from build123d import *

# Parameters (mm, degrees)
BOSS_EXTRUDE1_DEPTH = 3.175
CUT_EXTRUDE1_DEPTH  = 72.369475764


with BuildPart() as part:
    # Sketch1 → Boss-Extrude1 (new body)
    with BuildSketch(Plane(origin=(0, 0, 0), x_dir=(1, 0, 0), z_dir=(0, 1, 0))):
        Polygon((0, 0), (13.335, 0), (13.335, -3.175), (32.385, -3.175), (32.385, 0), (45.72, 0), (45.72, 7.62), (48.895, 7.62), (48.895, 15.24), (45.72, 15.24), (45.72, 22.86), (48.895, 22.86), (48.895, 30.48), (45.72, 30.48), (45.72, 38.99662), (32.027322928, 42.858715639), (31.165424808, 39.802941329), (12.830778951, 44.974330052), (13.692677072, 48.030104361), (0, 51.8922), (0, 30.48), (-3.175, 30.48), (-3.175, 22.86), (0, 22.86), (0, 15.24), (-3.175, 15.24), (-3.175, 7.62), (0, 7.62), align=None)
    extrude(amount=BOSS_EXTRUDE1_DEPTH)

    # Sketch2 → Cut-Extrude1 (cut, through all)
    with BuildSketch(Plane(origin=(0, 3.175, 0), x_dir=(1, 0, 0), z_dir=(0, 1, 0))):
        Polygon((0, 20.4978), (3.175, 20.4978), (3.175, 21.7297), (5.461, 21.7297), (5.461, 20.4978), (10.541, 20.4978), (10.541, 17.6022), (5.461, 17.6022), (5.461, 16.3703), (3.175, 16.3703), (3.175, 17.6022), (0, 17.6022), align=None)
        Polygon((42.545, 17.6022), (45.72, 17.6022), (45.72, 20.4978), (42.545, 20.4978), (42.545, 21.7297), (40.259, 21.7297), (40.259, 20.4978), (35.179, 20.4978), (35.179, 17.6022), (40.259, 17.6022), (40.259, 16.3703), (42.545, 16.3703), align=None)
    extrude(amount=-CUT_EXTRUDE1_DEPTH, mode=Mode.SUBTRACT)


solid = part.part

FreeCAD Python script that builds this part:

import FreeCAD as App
import Part
import Sketcher
from FreeCAD import Vector
Q = App.Units.Quantity

doc = App.newDocument("Part")
body = doc.addObject("PartDesign::Body", "Body")

# Sketch on XZ plane
sketch1 = body.newObject("Sketcher::SketchObject", "Sketch")
sketch1.AttachmentSupport = (doc.getObject("XZ_Plane"), [""])
sketch1.MapMode = "FlatFace"
sketch1.addGeometry([
    Part.LineSegment(Vector(0, 0, 0), Vector(13.3, 0, 0)),  # 0
    Part.LineSegment(Vector(13.3, 0, 0), Vector(13.3, 3.2, 0)),  # 1
    Part.LineSegment(Vector(13.3, 3.2, 0), Vector(32.4, 3.2, 0)),  # 2
    Part.LineSegment(Vector(32.4, 3.2, 0), Vector(32.4, 0, 0)),  # 3
    Part.LineSegment(Vector(32.4, 0, 0), Vector(45.7, 0, 0)),  # 4
    Part.LineSegment(Vector(45.7, 0, 0), Vector(45.7, -7.6, 0)),  # 5
    Part.LineSegment(Vector(45.7, -7.6, 0), Vector(48.9, -7.6, 0)),  # 6
    Part.LineSegment(Vector(48.9, -7.6, 0), Vector(48.9, -15.2, 0)),  # 7
    Part.LineSegment(Vector(48.9, -15.2, 0), Vector(45.7, -15.2, 0)),  # 8
    Part.LineSegment(Vector(45.7, -15.2, 0), Vector(45.7, -22.9, 0)),  # 9
    Part.LineSegment(Vector(45.7, -22.9, 0), Vector(48.9, -22.9, 0)),  # 10
    Part.LineSegment(Vector(48.9, -22.9, 0), Vector(48.9, -30.5, 0)),  # 11
    Part.LineSegment(Vector(48.9, -30.5, 0), Vector(45.7, -30.5, 0)),  # 12
    Part.LineSegment(Vector(45.7, -30.5, 0), Vector(45.7, -39, 0)),  # 13
    Part.LineSegment(Vector(45.7, -39, 0), Vector(32, -42.9, 0)),  # 14
    Part.LineSegment(Vector(32, -42.9, 0), Vector(31.2, -39.8, 0)),  # 15
    Part.LineSegment(Vector(31.2, -39.8, 0), Vector(12.8, -45, 0)),  # 16
    Part.LineSegment(Vector(12.8, -45, 0), Vector(13.7, -48, 0)),  # 17
    Part.LineSegment(Vector(13.7, -48, 0), Vector(0, -51.9, 0)),  # 18
    Part.LineSegment(Vector(0, -51.9, 0), Vector(0, -30.5, 0)),  # 19
    Part.LineSegment(Vector(0, -30.5, 0), Vector(-3.2, -30.5, 0)),  # 20
    Part.LineSegment(Vector(-3.2, -30.5, 0), Vector(-3.2, -22.9, 0)),  # 21
    Part.LineSegment(Vector(-3.2, -22.9, 0), Vector(0, -22.9, 0)),  # 22
    Part.LineSegment(Vector(0, -22.9, 0), Vector(0, -15.2, 0)),  # 23
    Part.LineSegment(Vector(0, -15.2, 0), Vector(-3.2, -15.2, 0)),  # 24
    Part.LineSegment(Vector(-3.2, -15.2, 0), Vector(-3.2, -7.6, 0)),  # 25
    Part.LineSegment(Vector(-3.2, -7.6, 0), Vector(0, -7.6, 0)),  # 26
    Part.LineSegment(Vector(0, -7.6, 0), Vector(0, 0, 0)),  # 27
], False)
sketch1.addConstraint([
    Sketcher.Constraint("Coincident", 0, 2, 1, 1),
    Sketcher.Constraint("Coincident", 1, 2, 2, 1),
    Sketcher.Constraint("Coincident", 2, 2, 3, 1),
    Sketcher.Constraint("Coincident", 3, 2, 4, 1),
    Sketcher.Constraint("Coincident", 4, 2, 5, 1),
    Sketcher.Constraint("Coincident", 5, 2, 6, 1),
    Sketcher.Constraint("Coincident", 6, 2, 7, 1),
    Sketcher.Constraint("Coincident", 7, 2, 8, 1),
    Sketcher.Constraint("Coincident", 8, 2, 9, 1),
    Sketcher.Constraint("Coincident", 9, 2, 10, 1),
    Sketcher.Constraint("Coincident", 10, 2, 11, 1),
    Sketcher.Constraint("Coincident", 11, 2, 12, 1),
    Sketcher.Constraint("Coincident", 12, 2, 13, 1),
    Sketcher.Constraint("Coincident", 13, 2, 14, 1),
    Sketcher.Constraint("Coincident", 14, 2, 15, 1),
    Sketcher.Constraint("Coincident", 15, 2, 16, 1),
    Sketcher.Constraint("Coincident", 16, 2, 17, 1),
    Sketcher.Constraint("Coincident", 17, 2, 18, 1),
    Sketcher.Constraint("Coincident", 18, 2, 19, 1),
    Sketcher.Constraint("Coincident", 19, 2, 20, 1),
    Sketcher.Constraint("Coincident", 20, 2, 21, 1),
    Sketcher.Constraint("Coincident", 21, 2, 22, 1),
    Sketcher.Constraint("Coincident", 22, 2, 23, 1),
    Sketcher.Constraint("Coincident", 23, 2, 24, 1),
    Sketcher.Constraint("Coincident", 24, 2, 25, 1),
    Sketcher.Constraint("Coincident", 25, 2, 26, 1),
    Sketcher.Constraint("Coincident", 26, 2, 27, 1),
    Sketcher.Constraint("Coincident", 27, 2, 0, 1),
    Sketcher.Constraint("Horizontal", 0),
    Sketcher.Constraint("Vertical", 1),
    Sketcher.Constraint("Horizontal", 2),
    Sketcher.Constraint("Vertical", 3),
    Sketcher.Constraint("Horizontal", 4),
    Sketcher.Constraint("Vertical", 5),
    Sketcher.Constraint("Horizontal", 6),
    Sketcher.Constraint("Vertical", 7),
    Sketcher.Constraint("Horizontal", 8),
    Sketcher.Constraint("Vertical", 9),
    Sketcher.Constraint("Horizontal", 10),
    Sketcher.Constraint("Vertical", 11),
    Sketcher.Constraint("Horizontal", 12),
    Sketcher.Constraint("Vertical", 13),
    Sketcher.Constraint("Vertical", 19),
    Sketcher.Constraint("Horizontal", 20),
    Sketcher.Constraint("Vertical", 21),
    Sketcher.Constraint("Horizontal", 22),
    Sketcher.Constraint("Vertical", 23),
    Sketcher.Constraint("Horizontal", 24),
    Sketcher.Constraint("Vertical", 25),
    Sketcher.Constraint("Horizontal", 26),
    Sketcher.Constraint("Vertical", 27),
    Sketcher.Constraint("Coincident", 27, 2, -1, 1),
    Sketcher.Constraint("PointOnObject", 3, 2, -1),
    Sketcher.Constraint("PointOnObject", 18, 2, -2),
    Sketcher.Constraint("PointOnObject", 22, 2, -2),
    Sketcher.Constraint("Perpendicular", 14, 15),
    Sketcher.Constraint("Perpendicular", 15, 16),
    Sketcher.Constraint("Perpendicular", 16, 17),
    Sketcher.Constraint("Perpendicular", 17, 18),
    Sketcher.Constraint("Horizontal", 12, 2, 19, 2),
    Sketcher.Constraint("Horizontal", 10, 2, 21, 2),
    Sketcher.Constraint("Horizontal", 8, 2, 23, 2),
    Sketcher.Constraint("Horizontal", 6, 2, 25, 2),
    Sketcher.Constraint("Vertical", 5, 2, 8, 2),
    Sketcher.Constraint("Vertical", 7, 2, 10, 2),
    Sketcher.Constraint("Vertical", 9, 2, 12, 2),
    Sketcher.Constraint("Vertical", 21, 2, 24, 2),
    Sketcher.Constraint("Equal", 0, 4),
    Sketcher.Constraint("Equal", 12, 20),
    Sketcher.Constraint("Equal", 26, 1),
    Sketcher.Constraint("Equal", 5, 7),
    Sketcher.Constraint("Equal", 7, 9),
    Sketcher.Constraint("Equal", 9, 11),
    Sketcher.Constraint("Equal", 15, 17),
    Sketcher.Constraint("Equal", 14, 18),
    Sketcher.Constraint("DistanceY", 5, 2, 5, 1, Q("0.3 in")),
    Sketcher.Constraint("DistanceX", 2, 1, 2, 2, Q("0.75 in")),
    Sketcher.Constraint("DistanceX", -1, 1, 4, 2, Q("1.8 in")),
    Sketcher.Constraint("DistanceX", 0, 2, 6, 2, Q("1.4 in")),
    Sketcher.Constraint("Distance", 16, Q("0.75 in")),
    Sketcher.Constraint("DistanceY", 19, 1, 19, 2, Q("0.843 in")),
    Sketcher.Constraint("Distance", 15, Q("0.125 in")),
    Sketcher.Constraint("DistanceY", 13, 2, 13, 1, Q("0.3353 in")),
])
pad1 = body.newObject("PartDesign::Pad", "Pad")
pad1.Profile = sketch1
pad1.Length = Q("0.125 in")
pad1.Reversed = True

# Sketch on XZ plane
sketch2 = body.newObject("Sketcher::SketchObject", "Sketch001")
sketch2.AttachmentSupport = (doc.getObject("XZ_Plane"), [""])
sketch2.MapMode = "FlatFace"
sketch2.AttachmentOffset = App.Placement(Vector(0, 0, -0.125 * 25.4), App.Rotation())
sketch2.addGeometry([
    Part.LineSegment(Vector(3.2, -20.5, 0), Vector(0, -20.5, 0)),  # 0
    Part.LineSegment(Vector(0, -20.5, 0), Vector(0, -17.6, 0)),  # 1
    Part.LineSegment(Vector(0, -17.6, 0), Vector(3.2, -17.6, 0)),  # 2
    Part.LineSegment(Vector(3.2, -17.6, 0), Vector(3.2, -16.4, 0)),  # 3
    Part.LineSegment(Vector(3.2, -16.4, 0), Vector(5.5, -16.4, 0)),  # 4
    Part.LineSegment(Vector(5.5, -16.4, 0), Vector(5.5, -17.6, 0)),  # 5
    Part.LineSegment(Vector(5.5, -17.6, 0), Vector(10.5, -17.6, 0)),  # 6
    Part.LineSegment(Vector(10.5, -17.6, 0), Vector(10.5, -20.5, 0)),  # 7
    Part.LineSegment(Vector(10.5, -20.5, 0), Vector(5.5, -20.5, 0)),  # 8
    Part.LineSegment(Vector(5.5, -20.5, 0), Vector(5.5, -21.7, 0)),  # 9
    Part.LineSegment(Vector(5.5, -21.7, 0), Vector(3.2, -21.7, 0)),  # 10
    Part.LineSegment(Vector(3.2, -21.7, 0), Vector(3.2, -20.5, 0)),  # 11
    Part.LineSegment(Vector(42.5, -17.6, 0), Vector(45.7, -17.6, 0)),  # 12
    Part.LineSegment(Vector(45.7, -17.6, 0), Vector(45.7, -20.5, 0)),  # 13
    Part.LineSegment(Vector(45.7, -20.5, 0), Vector(42.5, -20.5, 0)),  # 14
    Part.LineSegment(Vector(42.5, -20.5, 0), Vector(42.5, -21.7, 0)),  # 15
    Part.LineSegment(Vector(42.5, -21.7, 0), Vector(40.3, -21.7, 0)),  # 16
    Part.LineSegment(Vector(40.3, -21.7, 0), Vector(40.3, -20.5, 0)),  # 17
    Part.LineSegment(Vector(40.3, -20.5, 0), Vector(35.2, -20.5, 0)),  # 18
    Part.LineSegment(Vector(35.2, -20.5, 0), Vector(35.2, -17.6, 0)),  # 19
    Part.LineSegment(Vector(35.2, -17.6, 0), Vector(40.3, -17.6, 0)),  # 20
    Part.LineSegment(Vector(40.3, -17.6, 0), Vector(40.3, -16.4, 0)),  # 21
    Part.LineSegment(Vector(40.3, -16.4, 0), Vector(42.5, -16.4, 0)),  # 22
    Part.LineSegment(Vector(42.5, -16.4, 0), Vector(42.5, -17.6, 0)),  # 23
], False)
sketch2.addConstraint([
    Sketcher.Constraint("Coincident", 0, 2, 1, 1),
    Sketcher.Constraint("Coincident", 1, 2, 2, 1),
    Sketcher.Constraint("Coincident", 2, 2, 3, 1),
    Sketcher.Constraint("Coincident", 3, 2, 4, 1),
    Sketcher.Constraint("Coincident", 4, 2, 5, 1),
    Sketcher.Constraint("Coincident", 5, 2, 6, 1),
    Sketcher.Constraint("Coincident", 6, 2, 7, 1),
    Sketcher.Constraint("Coincident", 7, 2, 8, 1),
    Sketcher.Constraint("Coincident", 8, 2, 9, 1),
    Sketcher.Constraint("Coincident", 9, 2, 10, 1),
    Sketcher.Constraint("Coincident", 10, 2, 11, 1),
    Sketcher.Constraint("Coincident", 11, 2, 0, 1),
    Sketcher.Constraint("Coincident", 12, 2, 13, 1),
    Sketcher.Constraint("Coincident", 13, 2, 14, 1),
    Sketcher.Constraint("Coincident", 14, 2, 15, 1),
    Sketcher.Constraint("Coincident", 15, 2, 16, 1),
    Sketcher.Constraint("Coincident", 16, 2, 17, 1),
    Sketcher.Constraint("Coincident", 17, 2, 18, 1),
    Sketcher.Constraint("Coincident", 18, 2, 19, 1),
    Sketcher.Constraint("Coincident", 19, 2, 20, 1),
    Sketcher.Constraint("Coincident", 20, 2, 21, 1),
    Sketcher.Constraint("Coincident", 21, 2, 22, 1),
    Sketcher.Constraint("Coincident", 22, 2, 23, 1),
    Sketcher.Constraint("Coincident", 23, 2, 12, 1),
    Sketcher.Constraint("Horizontal", 0),
    Sketcher.Constraint("Vertical", 1),
    Sketcher.Constraint("Horizontal", 2),
    Sketcher.Constraint("Vertical", 3),
    Sketcher.Constraint("Horizontal", 4),
    Sketcher.Constraint("Vertical", 5),
    Sketcher.Constraint("Horizontal", 6),
    Sketcher.Constraint("Vertical", 7),
    Sketcher.Constraint("Horizontal", 8),
    Sketcher.Constraint("Vertical", 9),
    Sketcher.Constraint("Horizontal", 10),
    Sketcher.Constraint("Vertical", 11),
    Sketcher.Constraint("Horizontal", 12),
    Sketcher.Constraint("Vertical", 13),
    Sketcher.Constraint("Horizontal", 14),
    Sketcher.Constraint("Vertical", 15),
    Sketcher.Constraint("Horizontal", 16),
    Sketcher.Constraint("Vertical", 17),
    Sketcher.Constraint("Horizontal", 18),
    Sketcher.Constraint("Vertical", 19),
    Sketcher.Constraint("Horizontal", 20),
    Sketcher.Constraint("Vertical", 21),
    Sketcher.Constraint("Horizontal", 22),
    Sketcher.Constraint("Vertical", 23),
    Sketcher.Constraint("PointOnObject", 0, 2, -2),
    Sketcher.Constraint("Horizontal", 2, 2, 5, 2),
    Sketcher.Constraint("Horizontal", 0, 2, 7, 2),
    Sketcher.Constraint("Horizontal", 6, 2, 12, 2),
    Sketcher.Constraint("Horizontal", 11, 2, 13, 2),
    Sketcher.Constraint("Horizontal", 10, 2, 15, 2),
    Sketcher.Constraint("Horizontal", 14, 2, 17, 2),
    Sketcher.Constraint("Horizontal", 12, 2, 19, 2),
    Sketcher.Constraint("Horizontal", 4, 2, 21, 2),
    Sketcher.Constraint("Vertical", 5, 2, 8, 2),
    Sketcher.Constraint("Vertical", 3, 2, 10, 2),
    Sketcher.Constraint("Vertical", 17, 2, 20, 2),
    Sketcher.Constraint("Vertical", 15, 2, 22, 2),
    Sketcher.Constraint("Equal", 2, 12),
    Sketcher.Constraint("Equal", 10, 16),
    Sketcher.Constraint("Equal", 8, 18),
    Sketcher.Constraint("Equal", 5, 9),
    Sketcher.Constraint("DistanceX", 6, 1, 6, 2, Q("0.2 in")),
    Sketcher.Constraint("DistanceX", 4, 1, 4, 2, Q("0.09 in")),
    Sketcher.Constraint("DistanceX", -1, 1, 12, 2, Q("1.8 in")),
    Sketcher.Constraint("DistanceX", 0, 2, 0, 1, Q("0.125 in")),
    Sketcher.Constraint("DistanceY", 1, 1, 1, 2, Q("0.114 in")),
    Sketcher.Constraint("DistanceY", 3, 1, 3, 2, Q("0.0485 in")),
    Sketcher.Constraint("DistanceY", 0, 2, -1, 1, Q("0.807 in")),
])
pocket1 = body.newObject("PartDesign::Pocket", "Pocket")
pocket1.Profile = sketch2
pocket1.Type = "ThroughAll"
pocket1.Reversed = True

doc.recompute()
